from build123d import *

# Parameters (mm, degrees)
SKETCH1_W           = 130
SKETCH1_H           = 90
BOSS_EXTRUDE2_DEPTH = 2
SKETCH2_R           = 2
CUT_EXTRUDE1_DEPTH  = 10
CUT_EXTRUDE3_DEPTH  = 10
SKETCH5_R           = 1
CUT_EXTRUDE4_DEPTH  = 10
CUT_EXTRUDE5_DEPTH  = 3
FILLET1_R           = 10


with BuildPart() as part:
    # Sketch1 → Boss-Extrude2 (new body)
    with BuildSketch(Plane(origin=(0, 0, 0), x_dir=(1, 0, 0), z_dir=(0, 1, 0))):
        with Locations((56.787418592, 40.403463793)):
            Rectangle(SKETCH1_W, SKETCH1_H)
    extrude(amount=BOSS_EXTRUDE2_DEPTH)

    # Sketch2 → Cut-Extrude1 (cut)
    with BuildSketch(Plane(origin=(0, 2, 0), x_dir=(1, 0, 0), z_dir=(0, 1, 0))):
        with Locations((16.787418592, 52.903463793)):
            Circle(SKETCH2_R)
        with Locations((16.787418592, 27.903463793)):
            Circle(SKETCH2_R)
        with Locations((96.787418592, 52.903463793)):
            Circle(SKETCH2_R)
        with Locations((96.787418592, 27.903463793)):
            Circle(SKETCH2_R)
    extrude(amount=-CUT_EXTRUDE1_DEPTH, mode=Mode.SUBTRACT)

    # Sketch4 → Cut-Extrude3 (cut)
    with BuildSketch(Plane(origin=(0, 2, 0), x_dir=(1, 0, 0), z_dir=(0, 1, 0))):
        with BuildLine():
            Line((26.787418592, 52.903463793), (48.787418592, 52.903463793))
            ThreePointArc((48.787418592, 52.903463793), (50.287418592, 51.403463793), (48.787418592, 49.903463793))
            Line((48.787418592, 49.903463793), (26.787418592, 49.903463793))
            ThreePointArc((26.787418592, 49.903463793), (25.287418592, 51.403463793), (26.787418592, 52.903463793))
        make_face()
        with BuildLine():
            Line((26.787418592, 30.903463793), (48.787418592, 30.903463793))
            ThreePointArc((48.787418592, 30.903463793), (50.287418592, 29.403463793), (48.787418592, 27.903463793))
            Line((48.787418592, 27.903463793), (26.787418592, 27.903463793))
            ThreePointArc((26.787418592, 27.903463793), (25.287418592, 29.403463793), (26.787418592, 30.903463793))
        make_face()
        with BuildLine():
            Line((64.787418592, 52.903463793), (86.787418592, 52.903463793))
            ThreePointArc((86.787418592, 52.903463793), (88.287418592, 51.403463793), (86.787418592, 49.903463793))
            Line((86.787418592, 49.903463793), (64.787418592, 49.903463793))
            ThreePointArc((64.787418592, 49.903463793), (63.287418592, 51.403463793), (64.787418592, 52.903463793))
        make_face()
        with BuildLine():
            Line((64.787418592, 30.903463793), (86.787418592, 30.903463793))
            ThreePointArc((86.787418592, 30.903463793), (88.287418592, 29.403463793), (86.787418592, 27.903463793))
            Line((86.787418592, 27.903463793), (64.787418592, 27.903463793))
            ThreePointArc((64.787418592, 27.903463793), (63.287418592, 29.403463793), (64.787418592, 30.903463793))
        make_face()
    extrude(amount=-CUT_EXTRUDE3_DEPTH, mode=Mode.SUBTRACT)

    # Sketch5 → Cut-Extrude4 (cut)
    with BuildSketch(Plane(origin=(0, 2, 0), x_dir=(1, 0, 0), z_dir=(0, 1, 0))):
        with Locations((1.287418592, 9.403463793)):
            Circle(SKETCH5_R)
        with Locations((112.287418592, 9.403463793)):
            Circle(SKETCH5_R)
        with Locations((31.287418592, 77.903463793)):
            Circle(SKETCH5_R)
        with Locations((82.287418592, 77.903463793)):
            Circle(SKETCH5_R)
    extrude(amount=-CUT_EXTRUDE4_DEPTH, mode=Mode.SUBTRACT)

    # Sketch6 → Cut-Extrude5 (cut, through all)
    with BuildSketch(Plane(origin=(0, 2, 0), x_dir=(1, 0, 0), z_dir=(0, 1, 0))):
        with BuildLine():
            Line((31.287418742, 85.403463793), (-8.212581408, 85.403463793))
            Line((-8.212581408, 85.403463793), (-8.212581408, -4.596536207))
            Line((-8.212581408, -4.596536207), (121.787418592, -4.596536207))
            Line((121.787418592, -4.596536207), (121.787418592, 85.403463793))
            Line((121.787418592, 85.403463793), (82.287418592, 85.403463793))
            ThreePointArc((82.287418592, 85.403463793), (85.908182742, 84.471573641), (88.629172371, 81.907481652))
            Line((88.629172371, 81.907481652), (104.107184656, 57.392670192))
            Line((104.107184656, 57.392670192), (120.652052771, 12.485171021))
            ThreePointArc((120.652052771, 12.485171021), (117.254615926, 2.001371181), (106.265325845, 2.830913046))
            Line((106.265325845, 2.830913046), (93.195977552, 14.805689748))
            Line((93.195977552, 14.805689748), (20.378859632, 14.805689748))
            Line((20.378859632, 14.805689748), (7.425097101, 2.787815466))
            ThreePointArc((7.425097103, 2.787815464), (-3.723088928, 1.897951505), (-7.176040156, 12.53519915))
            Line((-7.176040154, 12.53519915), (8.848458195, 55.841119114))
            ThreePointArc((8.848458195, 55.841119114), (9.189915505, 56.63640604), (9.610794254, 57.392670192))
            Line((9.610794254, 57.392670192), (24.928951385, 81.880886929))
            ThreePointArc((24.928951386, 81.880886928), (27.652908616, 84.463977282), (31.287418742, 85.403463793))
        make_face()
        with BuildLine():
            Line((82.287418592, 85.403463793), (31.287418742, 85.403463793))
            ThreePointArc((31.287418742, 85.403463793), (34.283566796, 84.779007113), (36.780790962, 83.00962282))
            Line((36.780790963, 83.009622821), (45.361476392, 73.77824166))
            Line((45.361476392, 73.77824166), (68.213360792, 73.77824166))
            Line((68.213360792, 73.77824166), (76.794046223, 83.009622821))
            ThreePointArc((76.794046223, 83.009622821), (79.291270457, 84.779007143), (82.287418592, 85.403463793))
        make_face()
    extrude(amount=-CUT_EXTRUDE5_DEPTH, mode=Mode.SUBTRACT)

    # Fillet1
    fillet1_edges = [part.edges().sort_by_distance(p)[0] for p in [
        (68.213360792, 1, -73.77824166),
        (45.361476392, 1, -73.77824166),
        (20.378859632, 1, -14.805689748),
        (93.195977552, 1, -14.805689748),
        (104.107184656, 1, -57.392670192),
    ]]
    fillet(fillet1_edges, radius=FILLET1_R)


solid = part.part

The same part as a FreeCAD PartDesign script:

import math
import FreeCAD as App
import Part
import Sketcher
Q = App.Units.Quantity


def edges_at(feature, points):
    """Names of the edges that pass closest to the given points."""
    edges = feature.Shape.Edges
    near = lambda p: min(range(len(edges)), key=lambda i: edges[i].distToShape(Part.Vertex(*p))[0])
    return sorted({f"Edge{near(p) + 1}" for p in points})


def add_polygon(sketch, points):
    """Adds a closed chain of lines whose ends are joined by coincident constraints."""
    first, n = sketch.GeometryCount, len(points)
    for a, b in zip(points, points[1:] + points[:1]):
        sketch.addGeometry(Part.LineSegment(App.Vector(*a, 0), App.Vector(*b, 0)), False)
    for i in range(n):
        sketch.addConstraint(Sketcher.Constraint("Coincident", first + i, 2, first + (i + 1) % n, 1))

doc = App.newDocument("Part")
body = doc.addObject("PartDesign::Body", "Body")

# Sketch on XZ plane
sketch1 = body.newObject("Sketcher::SketchObject", "Sketch")
sketch1.AttachmentSupport = (doc.getObject("XZ_Plane"), [""])
sketch1.MapMode = "FlatFace"
add_polygon(sketch1, [(-8, -85), (-8, 5), (122, 5), (122, -85)])  # lines 0-3
sketch1.addConstraint(Sketcher.Constraint("Vertical", 0))
sketch1.addConstraint(Sketcher.Constraint("Horizontal", 1))
sketch1.addConstraint(Sketcher.Constraint("Vertical", 2))
sketch1.addConstraint(Sketcher.Constraint("Horizontal", 3))
sketch1.addConstraint(Sketcher.Constraint("DistanceX", 1, 1, 1, 2, Q("130 mm")))
sketch1.addConstraint(Sketcher.Constraint("DistanceY", 0, 1, 0, 2, Q("90 mm")))
sketch1.addConstraint(Sketcher.Constraint("DistanceX", 0, 2, -1, 1, Q("8.212581 mm")))
sketch1.addConstraint(Sketcher.Constraint("DistanceY", -1, 1, 0, 2, Q("4.596536 mm")))
pad1 = body.newObject("PartDesign::Pad", "Pad")
pad1.Profile = sketch1
pad1.Length = 2
pad1.Reversed = True

# Sketch on XZ plane
sketch2 = body.newObject("Sketcher::SketchObject", "Sketch001")
sketch2.AttachmentSupport = (doc.getObject("XZ_Plane"), [""])
sketch2.MapMode = "FlatFace"
sketch2.AttachmentOffset = App.Placement(App.Vector(0, 0, -2), App.Rotation())
sketch2.addGeometry(Part.Circle(App.Vector(16.8, -52.9, 0), App.Vector(0, 0, 1), 2), False)
sketch2.addGeometry(Part.Circle(App.Vector(16.8, -27.9, 0), App.Vector(0, 0, 1), 2), False)
sketch2.addGeometry(Part.Circle(App.Vector(96.8, -52.9, 0), App.Vector(0, 0, 1), 2), False)
sketch2.addGeometry(Part.Circle(App.Vector(96.8, -27.9, 0), App.Vector(0, 0, 1), 2), False)
sketch2.addConstraint(Sketcher.Constraint("Equal", 0, 1))
sketch2.addConstraint(Sketcher.Constraint("Equal", 1, 2))
sketch2.addConstraint(Sketcher.Constraint("Equal", 2, 3))
sketch2.addConstraint(Sketcher.Constraint("Horizontal", 0, 3, 2, 3))
sketch2.addConstraint(Sketcher.Constraint("Horizontal", 1, 3, 3, 3))
sketch2.addConstraint(Sketcher.Constraint("Vertical", 0, 3, 1, 3))
sketch2.addConstraint(Sketcher.Constraint("Vertical", 2, 3, 3, 3))
sketch2.addConstraint(Sketcher.Constraint("Diameter", 0, Q("4 mm")))
sketch2.addConstraint(Sketcher.Constraint("DistanceY", 0, 3, 1, 3, Q("25 mm")))
sketch2.addConstraint(Sketcher.Constraint("DistanceX", 0, 3, 2, 3, Q("80 mm")))
sketch2.addConstraint(Sketcher.Constraint("DistanceX", -1, 1, 0, 3, Q("16.787419 mm")))
sketch2.addConstraint(Sketcher.Constraint("DistanceY", 0, 3, -1, 1, Q("52.903464 mm")))
pocket1 = body.newObject("PartDesign::Pocket", "Pocket")
pocket1.Profile = sketch2
pocket1.Length = 10
pocket1.Reversed = True

# Sketch on XZ plane
sketch3 = body.newObject("Sketcher::SketchObject", "Sketch002")
sketch3.AttachmentSupport = (doc.getObject("XZ_Plane"), [""])
sketch3.MapMode = "FlatFace"
sketch3.AttachmentOffset = App.Placement(App.Vector(0, 0, -2), App.Rotation())
sketch3.addGeometry(Part.LineSegment(App.Vector(48.8, -52.9, 0), App.Vector(26.8, -52.9, 0)), False)
sketch3.addGeometry(Part.ArcOfCircle(Part.Circle(App.Vector(26.8, -51.4, 0), App.Vector(0, 0, 1), 1.5), math.radians(90), math.radians(270)), False)
sketch3.addGeometry(Part.LineSegment(App.Vector(26.8, -49.9, 0), App.Vector(48.8, -49.9, 0)), False)
sketch3.addGeometry(Part.ArcOfCircle(Part.Circle(App.Vector(48.8, -51.4, 0), App.Vector(0, 0, 1), 1.5), math.radians(-90), math.radians(90)), False)
sketch3.addGeometry(Part.LineSegment(App.Vector(48.8, -30.9, 0), App.Vector(26.8, -30.9, 0)), False)
sketch3.addGeometry(Part.ArcOfCircle(Part.Circle(App.Vector(26.8, -29.4, 0), App.Vector(0, 0, 1), 1.5), math.radians(90), math.radians(270)), False)
sketch3.addGeometry(Part.LineSegment(App.Vector(26.8, -27.9, 0), App.Vector(48.8, -27.9, 0)), False)
sketch3.addGeometry(Part.ArcOfCircle(Part.Circle(App.Vector(48.8, -29.4, 0), App.Vector(0, 0, 1), 1.5), math.radians(-90), math.radians(90)), False)
sketch3.addGeometry(Part.LineSegment(App.Vector(86.8, -52.9, 0), App.Vector(64.8, -52.9, 0)), False)
sketch3.addGeometry(Part.ArcOfCircle(Part.Circle(App.Vector(64.8, -51.4, 0), App.Vector(0, 0, 1), 1.5), math.radians(90), math.radians(270)), False)
sketch3.addGeometry(Part.LineSegment(App.Vector(64.8, -49.9, 0), App.Vector(86.8, -49.9, 0)), False)
sketch3.addGeometry(Part.ArcOfCircle(Part.Circle(App.Vector(86.8, -51.4, 0), App.Vector(0, 0, 1), 1.5), math.radians(-90), math.radians(90)), False)
sketch3.addGeometry(Part.LineSegment(App.Vector(86.8, -30.9, 0), App.Vector(64.8, -30.9, 0)), False)
sketch3.addGeometry(Part.ArcOfCircle(Part.Circle(App.Vector(64.8, -29.4, 0), App.Vector(0, 0, 1), 1.5), math.radians(90), math.radians(270)), False)
sketch3.addGeometry(Part.LineSegment(App.Vector(64.8, -27.9, 0), App.Vector(86.8, -27.9, 0)), False)
sketch3.addGeometry(Part.ArcOfCircle(Part.Circle(App.Vector(86.8, -29.4, 0), App.Vector(0, 0, 1), 1.5), math.radians(-90), math.radians(90)), False)
sketch3.addConstraint(Sketcher.Constraint("Tangent", 0, 2, 1, 2))
sketch3.addConstraint(Sketcher.Constraint("Tangent", 1, 1, 2, 1))
sketch3.addConstraint(Sketcher.Constraint("Tangent", 2, 2, 3, 2))
sketch3.addConstraint(Sketcher.Constraint("Tangent", 3, 1, 0, 1))
sketch3.addConstraint(Sketcher.Constraint("Tangent", 4, 2, 5, 2))
sketch3.addConstraint(Sketcher.Constraint("Tangent", 5, 1, 6, 1))
sketch3.addConstraint(Sketcher.Constraint("Tangent", 6, 2, 7, 2))
sketch3.addConstraint(Sketcher.Constraint("Tangent", 7, 1, 4, 1))
sketch3.addConstraint(Sketcher.Constraint("Tangent", 8, 2, 9, 2))
sketch3.addConstraint(Sketcher.Constraint("Tangent", 9, 1, 10, 1))
sketch3.addConstraint(Sketcher.Constraint("Tangent", 10, 2, 11, 2))
sketch3.addConstraint(Sketcher.Constraint("Tangent", 11, 1, 8, 1))
sketch3.addConstraint(Sketcher.Constraint("Tangent", 12, 2, 13, 2))
sketch3.addConstraint(Sketcher.Constraint("Tangent", 13, 1, 14, 1))
sketch3.addConstraint(Sketcher.Constraint("Tangent", 14, 2, 15, 2))
sketch3.addConstraint(Sketcher.Constraint("Tangent", 15, 1, 12, 1))
sketch3.addConstraint(Sketcher.Constraint("Horizontal", 0))
sketch3.addConstraint(Sketcher.Constraint("Horizontal", 2))
sketch3.addConstraint(Sketcher.Constraint("Horizontal", 4))
sketch3.addConstraint(Sketcher.Constraint("Horizontal", 6))
sketch3.addConstraint(Sketcher.Constraint("Horizontal", 8))
sketch3.addConstraint(Sketcher.Constraint("Horizontal", 10))
sketch3.addConstraint(Sketcher.Constraint("Horizontal", 12))
sketch3.addConstraint(Sketcher.Constraint("Horizontal", 14))
sketch3.addConstraint(Sketcher.Constraint("Equal", 3, 5))
sketch3.addConstraint(Sketcher.Constraint("Equal", 7, 9))
sketch3.addConstraint(Sketcher.Constraint("Equal", 11, 13))
sketch3.addConstraint(Sketcher.Constraint("Horizontal", 3, 3, 9, 3))
sketch3.addConstraint(Sketcher.Constraint("Horizontal", 7, 3, 13, 3))
sketch3.addConstraint(Sketcher.Constraint("Vertical", 1, 3, 5, 3))
sketch3.addConstraint(Sketcher.Constraint("Vertical", 3, 3, 7, 3))
sketch3.addConstraint(Sketcher.Constraint("Vertical", 9, 3, 13, 3))
sketch3.addConstraint(Sketcher.Constraint("Vertical", 11, 3, 15, 3))
sketch3.addConstraint(Sketcher.Constraint("Equal", 6, 8))
sketch3.addConstraint(Sketcher.Constraint("Radius", 1, Q("1.5 mm")))
sketch3.addConstraint(Sketcher.Constraint("DistanceX", 0, 2, 0, 1, Q("22 mm")))
sketch3.addConstraint(Sketcher.Constraint("DistanceY", 1, 3, 5, 3, Q("22 mm")))
sketch3.addConstraint(Sketcher.Constraint("DistanceX", 3, 3, 9, 3, Q("16 mm")))
sketch3.addConstraint(Sketcher.Constraint("DistanceX", -1, 1, 1, 3, Q("26.787419 mm")))
sketch3.addConstraint(Sketcher.Constraint("DistanceY", 1, 3, -1, 1, Q("51.403464 mm")))
pocket2 = body.newObject("PartDesign::Pocket", "Pocket001")
pocket2.Profile = sketch3
pocket2.Length = 10
pocket2.Reversed = True

# Sketch on XZ plane
sketch4 = body.newObject("Sketcher::SketchObject", "Sketch003")
sketch4.AttachmentSupport = (doc.getObject("XZ_Plane"), [""])
sketch4.MapMode = "FlatFace"
sketch4.AttachmentOffset = App.Placement(App.Vector(0, 0, -2), App.Rotation())
sketch4.addGeometry(Part.Circle(App.Vector(1.3, -9.4, 0), App.Vector(0, 0, 1), 1), False)
sketch4.addGeometry(Part.Circle(App.Vector(112.3, -9.4, 0), App.Vector(0, 0, 1), 1), False)
sketch4.addGeometry(Part.Circle(App.Vector(31.3, -77.9, 0), App.Vector(0, 0, 1), 1), False)
sketch4.addGeometry(Part.Circle(App.Vector(82.3, -77.9, 0), App.Vector(0, 0, 1), 1), False)
sketch4.addConstraint(Sketcher.Constraint("Equal", 0, 1))
sketch4.addConstraint(Sketcher.Constraint("Equal", 1, 2))
sketch4.addConstraint(Sketcher.Constraint("Equal", 2, 3))
sketch4.addConstraint(Sketcher.Constraint("Horizontal", 0, 3, 1, 3))
sketch4.addConstraint(Sketcher.Constraint("Horizontal", 2, 3, 3, 3))
sketch4.addConstraint(Sketcher.Constraint("Diameter", 0, Q("2 mm")))
sketch4.addConstraint(Sketcher.Constraint("DistanceX", 0, 3, 1, 3, Q("111 mm")))
sketch4.addConstraint(Sketcher.Constraint("DistanceX", 0, 3, 2, 3, Q("30 mm")))
sketch4.addConstraint(Sketcher.Constraint("DistanceX", 2, 3, 3, 3, Q("51 mm")))
sketch4.addConstraint(Sketcher.Constraint("DistanceY", 2, 3, 0, 3, Q("68.5 mm")))
sketch4.addConstraint(Sketcher.Constraint("DistanceX", -1, 1, 0, 3, Q("1.287419 mm")))
sketch4.addConstraint(Sketcher.Constraint("DistanceY", 0, 3, -1, 1, Q("9.403464 mm")))
pocket3 = body.newObject("PartDesign::Pocket", "Pocket002")
pocket3.Profile = sketch4
pocket3.Length = 10
pocket3.Reversed = True

# Sketch on XZ plane
sketch5 = body.newObject("Sketcher::SketchObject", "Sketch004")
sketch5.AttachmentSupport = (doc.getObject("XZ_Plane"), [""])
sketch5.MapMode = "FlatFace"
sketch5.AttachmentOffset = App.Placement(App.Vector(0, 0, -2), App.Rotation())
sketch5.addGeometry(Part.LineSegment(App.Vector(31.3, -85.4, 0), App.Vector(-8.2, -85.4, 0)), False)
sketch5.addGeometry(Part.LineSegment(App.Vector(-8.2, -85.4, 0), App.Vector(-8.2, 4.6, 0)), False)
sketch5.addGeometry(Part.LineSegment(App.Vector(-8.2, 4.6, 0), App.Vector(121.8, 4.6, 0)), False)
sketch5.addGeometry(Part.LineSegment(App.Vector(121.8, 4.6, 0), App.Vector(121.8, -85.4, 0)), False)
sketch5.addGeometry(Part.LineSegment(App.Vector(121.8, -85.4, 0), App.Vector(82.3, -85.4, 0)), False)
sketch5.addGeometry(Part.ArcOfCircle(Part.Circle(App.Vector(82.3, -77.9, 0), App.Vector(0, 0, 1), 7.5), math.radians(-90), math.radians(-32)), False)
sketch5.addGeometry(Part.LineSegment(App.Vector(88.6, -81.9, 0), App.Vector(104.1, -57.4, 0)), False)
sketch5.addGeometry(Part.LineSegment(App.Vector(104.1, -57.4, 0), App.Vector(120.7, -12.5, 0)), False)
sketch5.addGeometry(Part.ArcOfCircle(Part.Circle(App.Vector(112.3, -9.4, 0), App.Vector(0, 0, 1), 8.9), math.radians(-20), math.radians(132)), False)
sketch5.addGeometry(Part.LineSegment(App.Vector(106.3, -2.8, 0), App.Vector(93.2, -14.8, 0)), False)
sketch5.addGeometry(Part.LineSegment(App.Vector(93.2, -14.8, 0), App.Vector(20.4, -14.8, 0)), False)
sketch5.addGeometry(Part.LineSegment(App.Vector(20.4, -14.8, 0), App.Vector(7.4, -2.8, 0)), False)
sketch5.addGeometry(Part.ArcOfCircle(Part.Circle(App.Vector(1.3, -9.4, 0), App.Vector(0, 0, 1), 9), math.radians(47), math.radians(200)), False)
sketch5.addGeometry(Part.LineSegment(App.Vector(-7.2, -12.5, 0), App.Vector(8.8, -55.8, 0)), False)
sketch5.addGeometry(Part.ArcOfCircle(Part.Circle(App.Vector(16.8, -52.9, 0), App.Vector(0, 0, 1), 8.5), math.radians(-159.69), math.radians(-147.97)), False)
sketch5.addGeometry(Part.LineSegment(App.Vector(9.6, -57.4, 0), App.Vector(24.9, -81.9, 0)), False)
sketch5.addGeometry(Part.ArcOfCircle(Part.Circle(App.Vector(31.3, -77.9, 0), App.Vector(0, 0, 1), 7.5), math.radians(-148), math.radians(-90)), False)
sketch5.addGeometry(Part.LineSegment(App.Vector(82.3, -85.4, 0), App.Vector(31.3, -85.4, 0)), False)
sketch5.addGeometry(Part.ArcOfCircle(Part.Circle(App.Vector(31.3, -77.9, 0), App.Vector(0, 0, 1), 7.5), math.radians(-90), math.radians(-43)), False)
sketch5.addGeometry(Part.LineSegment(App.Vector(36.8, -83, 0), App.Vector(45.4, -73.8, 0)), False)
sketch5.addGeometry(Part.LineSegment(App.Vector(45.4, -73.8, 0), App.Vector(68.2, -73.8, 0)), False)
sketch5.addGeometry(Part.LineSegment(App.Vector(68.2, -73.8, 0), App.Vector(76.8, -83, 0)), False)
sketch5.addGeometry(Part.ArcOfCircle(Part.Circle(App.Vector(82.3, -77.9, 0), App.Vector(0, 0, 1), 7.5), math.radians(-137), math.radians(-90)), False)
sketch5.addConstraint(Sketcher.Constraint("Coincident", 0, 2, 1, 1))
sketch5.addConstraint(Sketcher.Constraint("Coincident", 1, 2, 2, 1))
sketch5.addConstraint(Sketcher.Constraint("Coincident", 2, 2, 3, 1))
sketch5.addConstraint(Sketcher.Constraint("Coincident", 3, 2, 4, 1))
sketch5.addConstraint(Sketcher.Constraint("Tangent", 4, 2, 5, 1))
sketch5.addConstraint(Sketcher.Constraint("Tangent", 5, 2, 6, 1))
sketch5.addConstraint(Sketcher.Constraint("Coincident", 6, 2, 7, 1))
sketch5.addConstraint(Sketcher.Constraint("Tangent", 7, 2, 8, 1))
sketch5.addConstraint(Sketcher.Constraint("Tangent", 8, 2, 9, 1))
sketch5.addConstraint(Sketcher.Constraint("Coincident", 9, 2, 10, 1))
sketch5.addConstraint(Sketcher.Constraint("Coincident", 10, 2, 11, 1))
sketch5.addConstraint(Sketcher.Constraint("Tangent", 11, 2, 12, 1))
sketch5.addConstraint(Sketcher.Constraint("Tangent", 12, 2, 13, 1))
sketch5.addConstraint(Sketcher.Constraint("Tangent", 13, 2, 14, 1))
sketch5.addConstraint(Sketcher.Constraint("Tangent", 14, 2, 15, 1))
sketch5.addConstraint(Sketcher.Constraint("Tangent", 15, 2, 16, 1))
sketch5.addConstraint(Sketcher.Constraint("Tangent", 16, 2, 0, 1))
sketch5.addConstraint(Sketcher.Constraint("Tangent", 17, 2, 18, 1))
sketch5.addConstraint(Sketcher.Constraint("Tangent", 18, 2, 19, 1))
sketch5.addConstraint(Sketcher.Constraint("Coincident", 19, 2, 20, 1))
sketch5.addConstraint(Sketcher.Constraint("Coincident", 20, 2, 21, 1))
sketch5.addConstraint(Sketcher.Constraint("Tangent", 21, 2, 22, 1))
sketch5.addConstraint(Sketcher.Constraint("Tangent", 22, 2, 17, 1))
sketch5.addConstraint(Sketcher.Constraint("Horizontal", 0))
sketch5.addConstraint(Sketcher.Constraint("Vertical", 1))
sketch5.addConstraint(Sketcher.Constraint("Horizontal", 2))
sketch5.addConstraint(Sketcher.Constraint("Vertical", 3))
sketch5.addConstraint(Sketcher.Constraint("Horizontal", 4))
sketch5.addConstraint(Sketcher.Constraint("Horizontal", 10))
sketch5.addConstraint(Sketcher.Constraint("Horizontal", 17))
sketch5.addConstraint(Sketcher.Constraint("Horizontal", 20))
sketch5.addConstraint(Sketcher.Constraint("Coincident", 18, 3, 16, 3))
sketch5.addConstraint(Sketcher.Constraint("Coincident", 22, 3, 5, 3))
sketch5.addConstraint(Sketcher.Constraint("Equal", 5, 16))
sketch5.addConstraint(Sketcher.Constraint("Equal", 16, 18))
sketch5.addConstraint(Sketcher.Constraint("Equal", 18, 22))
sketch5.addConstraint(Sketcher.Constraint("Horizontal", 8, 3, 12, 3))
sketch5.addConstraint(Sketcher.Constraint("Horizontal", 6, 2, 14, 2))
sketch5.addConstraint(Sketcher.Constraint("Horizontal", 18, 2, 21, 2))
sketch5.addConstraint(Sketcher.Constraint("Equal", 0, 4))
sketch5.addConstraint(Sketcher.Constraint("Radius", 5, Q("7.5 mm")))
sketch5.addConstraint(Sketcher.Constraint("DistanceX", 2, 1, 2, 2, Q("130 mm")))
sketch5.addConstraint(Sketcher.Constraint("DistanceX", 17, 2, 17, 1, Q("51 mm")))
sketch5.addConstraint(Sketcher.Constraint("DistanceY", 1, 1, 1, 2, Q("90 mm")))
sketch5.addConstraint(Sketcher.Constraint("DistanceX", 5, 3, 8, 3, Q("30 mm")))
sketch5.addConstraint(Sketcher.Constraint("DistanceX", 12, 3, 5, 3, Q("81 mm")))
sketch5.addConstraint(Sketcher.Constraint("DistanceY", 5, 3, 14, 3, Q("25 mm")))
sketch5.addConstraint(Sketcher.Constraint("DistanceX", 0, 2, 14, 3, Q("25 mm")))
sketch5.addConstraint(Sketcher.Constraint("DistanceY", 0, 2, 12, 3, Q("76 mm")))
sketch5.addConstraint(Sketcher.Constraint("Radius", 8, Q("8.91426 mm")))
sketch5.addConstraint(Sketcher.Constraint("Radius", 14, Q("8.465041 mm")))
sketch5.addConstraint(Sketcher.Constraint("Radius", 12, Q("9.024295 mm")))
sketch5.addConstraint(Sketcher.Constraint("DistanceY", 12, 2, -1, 1, Q("12.535199 mm")))
sketch5.addConstraint(Sketcher.Constraint("DistanceY", 6, 2, 7, 2, Q("44.907499 mm")))
sketch5.addConstraint(Sketcher.Constraint("DistanceX", 12, 2, 10, 2, Q("27.5549 mm")))
sketch5.addConstraint(Sketcher.Constraint("Distance", 11, Q("17.67001 mm")))
sketch5.addConstraint(Sketcher.Constraint("DistanceX", 10, 2, 10, 1, Q("72.817118 mm")))
sketch5.addConstraint(Sketcher.Constraint("DistanceX", 20, 1, 20, 2, Q("22.851884 mm")))
sketch5.addConstraint(Sketcher.Constraint("DistanceX", -1, 1, 5, 3, Q("82.287419 mm")))
sketch5.addConstraint(Sketcher.Constraint("DistanceX", -1, 1, 18, 2, Q("36.780791 mm")))
pocket4 = body.newObject("PartDesign::Pocket", "Pocket003")
pocket4.Profile = sketch5
pocket4.Type = "ThroughAll"
pocket4.Reversed = True
doc.recompute()

fillet = body.newObject("PartDesign::Fillet", "Fillet")
fillet.Base = (pocket4, edges_at(pocket4, [
    (68.213, 1, -73.778),
    (45.361, 1, -73.778),
    (20.379, 1, -14.806),
    (93.196, 1, -14.806),
    (104.107, 1, -57.393),
]))
fillet.Radius = 10

doc.recompute()
